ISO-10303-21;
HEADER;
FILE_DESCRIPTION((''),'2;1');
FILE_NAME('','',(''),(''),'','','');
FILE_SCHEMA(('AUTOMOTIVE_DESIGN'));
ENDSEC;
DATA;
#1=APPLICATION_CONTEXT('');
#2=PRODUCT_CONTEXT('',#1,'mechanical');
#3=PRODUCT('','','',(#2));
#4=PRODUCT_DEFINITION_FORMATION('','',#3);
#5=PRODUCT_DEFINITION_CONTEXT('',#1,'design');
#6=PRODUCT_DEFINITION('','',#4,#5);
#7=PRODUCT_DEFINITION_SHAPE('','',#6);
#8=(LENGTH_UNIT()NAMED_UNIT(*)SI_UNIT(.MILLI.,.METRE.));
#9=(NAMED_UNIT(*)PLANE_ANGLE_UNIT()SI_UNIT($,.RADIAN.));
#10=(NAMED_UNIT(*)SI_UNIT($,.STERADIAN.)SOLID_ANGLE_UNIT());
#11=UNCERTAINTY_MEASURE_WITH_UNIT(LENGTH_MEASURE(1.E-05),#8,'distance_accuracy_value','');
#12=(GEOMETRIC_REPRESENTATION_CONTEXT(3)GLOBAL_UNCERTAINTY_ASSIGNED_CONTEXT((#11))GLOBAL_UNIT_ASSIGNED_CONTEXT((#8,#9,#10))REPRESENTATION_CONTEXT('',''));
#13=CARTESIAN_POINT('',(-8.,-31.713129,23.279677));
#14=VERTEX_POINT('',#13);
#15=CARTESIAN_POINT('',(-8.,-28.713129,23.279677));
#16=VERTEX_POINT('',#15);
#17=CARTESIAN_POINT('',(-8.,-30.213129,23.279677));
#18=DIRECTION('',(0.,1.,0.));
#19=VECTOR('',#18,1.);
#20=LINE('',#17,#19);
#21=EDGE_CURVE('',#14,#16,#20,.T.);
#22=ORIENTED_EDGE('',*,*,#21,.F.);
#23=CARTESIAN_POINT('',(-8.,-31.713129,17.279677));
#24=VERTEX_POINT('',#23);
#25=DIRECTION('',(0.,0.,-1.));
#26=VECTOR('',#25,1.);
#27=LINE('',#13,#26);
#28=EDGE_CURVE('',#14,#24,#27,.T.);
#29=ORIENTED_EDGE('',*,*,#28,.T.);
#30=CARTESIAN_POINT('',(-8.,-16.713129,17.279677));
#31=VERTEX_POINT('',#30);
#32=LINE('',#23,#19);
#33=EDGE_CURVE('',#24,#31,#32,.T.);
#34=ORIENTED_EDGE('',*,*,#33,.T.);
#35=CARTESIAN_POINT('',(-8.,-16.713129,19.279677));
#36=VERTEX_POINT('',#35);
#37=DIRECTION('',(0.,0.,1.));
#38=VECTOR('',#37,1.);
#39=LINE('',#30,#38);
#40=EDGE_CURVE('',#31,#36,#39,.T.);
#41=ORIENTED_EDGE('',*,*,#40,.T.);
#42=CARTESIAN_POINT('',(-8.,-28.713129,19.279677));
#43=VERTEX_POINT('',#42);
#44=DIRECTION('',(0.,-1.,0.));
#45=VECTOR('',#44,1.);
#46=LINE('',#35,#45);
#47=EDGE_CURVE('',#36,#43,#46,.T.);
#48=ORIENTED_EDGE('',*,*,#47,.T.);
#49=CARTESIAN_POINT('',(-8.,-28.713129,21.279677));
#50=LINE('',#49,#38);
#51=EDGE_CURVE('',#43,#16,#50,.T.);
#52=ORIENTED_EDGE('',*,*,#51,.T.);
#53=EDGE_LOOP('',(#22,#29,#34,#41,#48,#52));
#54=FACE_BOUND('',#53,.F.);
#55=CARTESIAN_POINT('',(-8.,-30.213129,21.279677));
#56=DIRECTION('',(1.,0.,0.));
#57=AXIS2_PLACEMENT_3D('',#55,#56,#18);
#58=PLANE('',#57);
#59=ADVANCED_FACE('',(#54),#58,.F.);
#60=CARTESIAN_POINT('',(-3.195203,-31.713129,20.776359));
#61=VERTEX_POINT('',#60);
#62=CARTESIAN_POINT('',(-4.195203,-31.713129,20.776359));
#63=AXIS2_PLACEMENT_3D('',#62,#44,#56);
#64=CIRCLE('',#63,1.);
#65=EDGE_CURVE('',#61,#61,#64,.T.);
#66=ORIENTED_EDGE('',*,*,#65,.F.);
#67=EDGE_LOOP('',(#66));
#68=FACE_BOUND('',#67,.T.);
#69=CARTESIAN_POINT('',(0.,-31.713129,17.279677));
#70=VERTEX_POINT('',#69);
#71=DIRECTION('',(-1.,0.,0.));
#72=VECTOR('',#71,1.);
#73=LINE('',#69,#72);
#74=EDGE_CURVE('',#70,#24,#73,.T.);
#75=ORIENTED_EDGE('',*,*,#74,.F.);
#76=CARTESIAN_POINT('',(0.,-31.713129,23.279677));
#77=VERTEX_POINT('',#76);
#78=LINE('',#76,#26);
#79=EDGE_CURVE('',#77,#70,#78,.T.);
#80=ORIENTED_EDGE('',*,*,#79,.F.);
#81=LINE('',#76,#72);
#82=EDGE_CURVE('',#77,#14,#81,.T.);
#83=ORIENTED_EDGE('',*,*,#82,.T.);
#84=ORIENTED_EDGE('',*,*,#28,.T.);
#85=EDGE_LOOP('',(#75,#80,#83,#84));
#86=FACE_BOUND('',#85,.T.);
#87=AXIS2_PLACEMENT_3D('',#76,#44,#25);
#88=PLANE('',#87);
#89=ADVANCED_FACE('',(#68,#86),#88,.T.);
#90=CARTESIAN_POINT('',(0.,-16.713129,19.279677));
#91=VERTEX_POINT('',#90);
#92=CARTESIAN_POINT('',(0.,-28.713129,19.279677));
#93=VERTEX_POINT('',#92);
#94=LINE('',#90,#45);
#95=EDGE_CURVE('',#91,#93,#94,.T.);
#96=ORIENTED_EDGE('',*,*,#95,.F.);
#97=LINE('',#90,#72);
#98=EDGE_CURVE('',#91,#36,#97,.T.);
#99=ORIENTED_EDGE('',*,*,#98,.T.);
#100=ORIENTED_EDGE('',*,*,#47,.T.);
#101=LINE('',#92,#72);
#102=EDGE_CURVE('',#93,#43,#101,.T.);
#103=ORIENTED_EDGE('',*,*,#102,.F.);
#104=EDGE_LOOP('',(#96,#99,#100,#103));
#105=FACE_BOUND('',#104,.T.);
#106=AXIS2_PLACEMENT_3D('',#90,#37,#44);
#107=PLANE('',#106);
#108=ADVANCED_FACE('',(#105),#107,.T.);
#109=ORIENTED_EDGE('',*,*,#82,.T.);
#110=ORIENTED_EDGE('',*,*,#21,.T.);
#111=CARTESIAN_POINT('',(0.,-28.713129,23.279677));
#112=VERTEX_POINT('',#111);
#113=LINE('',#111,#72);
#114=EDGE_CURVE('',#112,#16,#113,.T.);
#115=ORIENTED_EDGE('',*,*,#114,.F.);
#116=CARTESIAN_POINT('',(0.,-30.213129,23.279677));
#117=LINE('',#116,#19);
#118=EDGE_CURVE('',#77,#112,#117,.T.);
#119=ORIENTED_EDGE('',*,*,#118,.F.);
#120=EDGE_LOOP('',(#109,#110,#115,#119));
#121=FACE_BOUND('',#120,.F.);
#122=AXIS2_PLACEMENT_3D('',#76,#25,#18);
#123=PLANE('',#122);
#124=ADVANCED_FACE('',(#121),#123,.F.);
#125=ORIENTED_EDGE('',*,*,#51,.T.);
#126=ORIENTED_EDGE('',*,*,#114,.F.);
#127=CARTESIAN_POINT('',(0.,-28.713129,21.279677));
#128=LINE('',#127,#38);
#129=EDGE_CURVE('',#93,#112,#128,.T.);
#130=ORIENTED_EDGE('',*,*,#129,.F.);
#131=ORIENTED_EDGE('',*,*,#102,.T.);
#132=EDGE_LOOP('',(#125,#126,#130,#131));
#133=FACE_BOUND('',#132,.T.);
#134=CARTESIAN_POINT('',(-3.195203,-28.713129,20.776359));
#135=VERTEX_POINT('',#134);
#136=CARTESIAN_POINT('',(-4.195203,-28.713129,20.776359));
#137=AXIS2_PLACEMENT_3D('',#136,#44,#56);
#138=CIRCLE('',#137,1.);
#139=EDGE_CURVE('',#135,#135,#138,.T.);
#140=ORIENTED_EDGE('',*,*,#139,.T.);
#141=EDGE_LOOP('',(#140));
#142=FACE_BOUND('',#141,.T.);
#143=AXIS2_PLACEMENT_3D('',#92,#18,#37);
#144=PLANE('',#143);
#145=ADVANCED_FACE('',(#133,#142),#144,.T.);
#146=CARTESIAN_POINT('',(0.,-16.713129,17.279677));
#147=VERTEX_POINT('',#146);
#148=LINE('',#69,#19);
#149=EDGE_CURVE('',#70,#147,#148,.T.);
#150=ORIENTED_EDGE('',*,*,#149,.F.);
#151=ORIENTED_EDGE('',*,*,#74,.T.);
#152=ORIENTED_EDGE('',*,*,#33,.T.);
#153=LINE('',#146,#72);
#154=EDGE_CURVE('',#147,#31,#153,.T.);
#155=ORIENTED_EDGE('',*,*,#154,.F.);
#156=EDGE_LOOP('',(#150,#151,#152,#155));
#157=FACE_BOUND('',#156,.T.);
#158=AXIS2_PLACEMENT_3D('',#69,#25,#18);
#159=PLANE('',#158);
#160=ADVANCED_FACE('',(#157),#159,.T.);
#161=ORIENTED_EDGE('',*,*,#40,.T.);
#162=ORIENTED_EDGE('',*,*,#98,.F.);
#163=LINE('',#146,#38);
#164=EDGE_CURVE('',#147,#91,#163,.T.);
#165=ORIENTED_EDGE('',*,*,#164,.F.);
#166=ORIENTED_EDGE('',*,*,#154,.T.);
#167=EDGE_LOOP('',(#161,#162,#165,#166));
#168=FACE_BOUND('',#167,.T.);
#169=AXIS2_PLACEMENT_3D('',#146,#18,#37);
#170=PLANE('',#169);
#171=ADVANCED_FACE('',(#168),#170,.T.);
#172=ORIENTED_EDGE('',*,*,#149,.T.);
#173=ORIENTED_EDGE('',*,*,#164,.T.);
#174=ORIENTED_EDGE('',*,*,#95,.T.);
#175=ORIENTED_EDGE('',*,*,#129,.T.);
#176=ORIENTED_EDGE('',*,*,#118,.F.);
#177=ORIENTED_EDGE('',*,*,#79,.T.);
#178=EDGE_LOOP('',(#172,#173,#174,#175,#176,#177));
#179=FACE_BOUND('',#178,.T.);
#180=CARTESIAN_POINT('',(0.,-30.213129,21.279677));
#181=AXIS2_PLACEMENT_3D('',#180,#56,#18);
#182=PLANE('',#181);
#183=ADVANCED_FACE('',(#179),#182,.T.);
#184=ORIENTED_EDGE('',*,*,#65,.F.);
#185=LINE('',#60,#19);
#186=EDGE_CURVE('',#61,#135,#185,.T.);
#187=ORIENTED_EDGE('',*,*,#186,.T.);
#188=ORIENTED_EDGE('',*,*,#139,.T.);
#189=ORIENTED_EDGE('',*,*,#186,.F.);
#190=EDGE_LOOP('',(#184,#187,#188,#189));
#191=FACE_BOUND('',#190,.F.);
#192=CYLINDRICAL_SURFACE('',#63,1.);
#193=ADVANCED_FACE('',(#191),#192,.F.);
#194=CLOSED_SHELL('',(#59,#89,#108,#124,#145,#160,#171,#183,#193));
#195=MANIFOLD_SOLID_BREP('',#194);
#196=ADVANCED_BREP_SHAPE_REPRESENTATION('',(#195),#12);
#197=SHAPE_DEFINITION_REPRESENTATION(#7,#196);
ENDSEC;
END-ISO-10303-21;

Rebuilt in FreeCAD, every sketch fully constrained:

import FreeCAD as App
import Part
import Sketcher

V = App.Vector

doc = App.newDocument("Part")
body = doc.addObject("PartDesign::Body", "Body")

# Sketch on YZ plane
sketch1 = body.newObject("Sketcher::SketchObject", "Sketch")
sketch1.AttachmentSupport = (doc.getObject("YZ_Plane"), [""])
sketch1.MapMode = "FlatFace"
sketch1.addGeometry(Part.LineSegment(V(-31.713129, 23.279677, 0), V(-31.713129, 17.279677, 0)), False)
sketch1.addGeometry(Part.LineSegment(V(-31.713129, 17.279677, 0), V(-16.713129, 17.279677, 0)), False)
sketch1.addGeometry(Part.LineSegment(V(-16.713129, 17.279677, 0), V(-16.713129, 19.279677, 0)), False)
sketch1.addGeometry(Part.LineSegment(V(-16.713129, 19.279677, 0), V(-28.713129, 19.279677, 0)), False)
sketch1.addGeometry(Part.LineSegment(V(-28.713129, 19.279677, 0), V(-28.713129, 23.279677, 0)), False)
sketch1.addGeometry(Part.LineSegment(V(-28.713129, 23.279677, 0), V(-31.713129, 23.279677, 0)), False)
sketch1.addConstraint(Sketcher.Constraint("Coincident", 0, 2, 1, 1))
sketch1.addConstraint(Sketcher.Constraint("Coincident", 1, 2, 2, 1))
sketch1.addConstraint(Sketcher.Constraint("Coincident", 2, 2, 3, 1))
sketch1.addConstraint(Sketcher.Constraint("Coincident", 3, 2, 4, 1))
sketch1.addConstraint(Sketcher.Constraint("Coincident", 4, 2, 5, 1))
sketch1.addConstraint(Sketcher.Constraint("Coincident", 5, 2, 0, 1))
sketch1.addConstraint(Sketcher.Constraint("Vertical", 0))
sketch1.addConstraint(Sketcher.Constraint("Horizontal", 1))
sketch1.addConstraint(Sketcher.Constraint("Vertical", 2))
sketch1.addConstraint(Sketcher.Constraint("Horizontal", 3))
sketch1.addConstraint(Sketcher.Constraint("Vertical", 4))
sketch1.addConstraint(Sketcher.Constraint("Horizontal", 5))
sketch1.addConstraint(Sketcher.Constraint("DistanceX", 1, 1, 1, 2, 15.0))
sketch1.addConstraint(Sketcher.Constraint("DistanceX", 3, 2, 3, 1, 12.0))
sketch1.addConstraint(Sketcher.Constraint("DistanceY", 0, 2, 0, 1, 6.0))
sketch1.addConstraint(Sketcher.Constraint("DistanceY", 2, 1, 2, 2, 2.0))
sketch1.addConstraint(Sketcher.Constraint("DistanceX", 0, 2, -1, 1, 31.713129))
sketch1.addConstraint(Sketcher.Constraint("DistanceY", -1, 1, 0, 2, 17.279677))
pad1 = body.newObject("PartDesign::Pad", "Pad")
pad1.Profile = sketch1
pad1.Length = 8
pad1.Reversed = True

# Sketch on XZ plane
sketch2 = body.newObject("Sketcher::SketchObject", "Sketch001")
sketch2.AttachmentSupport = (doc.getObject("XZ_Plane"), [""])
sketch2.MapMode = "FlatFace"
sketch2.AttachmentOffset = App.Placement(V(0, 0, 31.713129), App.Rotation())
sketch2.addGeometry(Part.Circle(V(-4.195203, 20.776359, 0), V(0, 0, 1), 1), False)
sketch2.addConstraint(Sketcher.Constraint("Diameter", 0, 2.0))
sketch2.addConstraint(Sketcher.Constraint("DistanceY", -1, 1, 0, 3, 20.776359))
sketch2.addConstraint(Sketcher.Constraint("DistanceX", 0, 3, -1, 1, 4.195203))
pocket1 = body.newObject("PartDesign::Pocket", "Pocket")
pocket1.Profile = sketch2
pocket1.Length = 4

doc.recompute()
